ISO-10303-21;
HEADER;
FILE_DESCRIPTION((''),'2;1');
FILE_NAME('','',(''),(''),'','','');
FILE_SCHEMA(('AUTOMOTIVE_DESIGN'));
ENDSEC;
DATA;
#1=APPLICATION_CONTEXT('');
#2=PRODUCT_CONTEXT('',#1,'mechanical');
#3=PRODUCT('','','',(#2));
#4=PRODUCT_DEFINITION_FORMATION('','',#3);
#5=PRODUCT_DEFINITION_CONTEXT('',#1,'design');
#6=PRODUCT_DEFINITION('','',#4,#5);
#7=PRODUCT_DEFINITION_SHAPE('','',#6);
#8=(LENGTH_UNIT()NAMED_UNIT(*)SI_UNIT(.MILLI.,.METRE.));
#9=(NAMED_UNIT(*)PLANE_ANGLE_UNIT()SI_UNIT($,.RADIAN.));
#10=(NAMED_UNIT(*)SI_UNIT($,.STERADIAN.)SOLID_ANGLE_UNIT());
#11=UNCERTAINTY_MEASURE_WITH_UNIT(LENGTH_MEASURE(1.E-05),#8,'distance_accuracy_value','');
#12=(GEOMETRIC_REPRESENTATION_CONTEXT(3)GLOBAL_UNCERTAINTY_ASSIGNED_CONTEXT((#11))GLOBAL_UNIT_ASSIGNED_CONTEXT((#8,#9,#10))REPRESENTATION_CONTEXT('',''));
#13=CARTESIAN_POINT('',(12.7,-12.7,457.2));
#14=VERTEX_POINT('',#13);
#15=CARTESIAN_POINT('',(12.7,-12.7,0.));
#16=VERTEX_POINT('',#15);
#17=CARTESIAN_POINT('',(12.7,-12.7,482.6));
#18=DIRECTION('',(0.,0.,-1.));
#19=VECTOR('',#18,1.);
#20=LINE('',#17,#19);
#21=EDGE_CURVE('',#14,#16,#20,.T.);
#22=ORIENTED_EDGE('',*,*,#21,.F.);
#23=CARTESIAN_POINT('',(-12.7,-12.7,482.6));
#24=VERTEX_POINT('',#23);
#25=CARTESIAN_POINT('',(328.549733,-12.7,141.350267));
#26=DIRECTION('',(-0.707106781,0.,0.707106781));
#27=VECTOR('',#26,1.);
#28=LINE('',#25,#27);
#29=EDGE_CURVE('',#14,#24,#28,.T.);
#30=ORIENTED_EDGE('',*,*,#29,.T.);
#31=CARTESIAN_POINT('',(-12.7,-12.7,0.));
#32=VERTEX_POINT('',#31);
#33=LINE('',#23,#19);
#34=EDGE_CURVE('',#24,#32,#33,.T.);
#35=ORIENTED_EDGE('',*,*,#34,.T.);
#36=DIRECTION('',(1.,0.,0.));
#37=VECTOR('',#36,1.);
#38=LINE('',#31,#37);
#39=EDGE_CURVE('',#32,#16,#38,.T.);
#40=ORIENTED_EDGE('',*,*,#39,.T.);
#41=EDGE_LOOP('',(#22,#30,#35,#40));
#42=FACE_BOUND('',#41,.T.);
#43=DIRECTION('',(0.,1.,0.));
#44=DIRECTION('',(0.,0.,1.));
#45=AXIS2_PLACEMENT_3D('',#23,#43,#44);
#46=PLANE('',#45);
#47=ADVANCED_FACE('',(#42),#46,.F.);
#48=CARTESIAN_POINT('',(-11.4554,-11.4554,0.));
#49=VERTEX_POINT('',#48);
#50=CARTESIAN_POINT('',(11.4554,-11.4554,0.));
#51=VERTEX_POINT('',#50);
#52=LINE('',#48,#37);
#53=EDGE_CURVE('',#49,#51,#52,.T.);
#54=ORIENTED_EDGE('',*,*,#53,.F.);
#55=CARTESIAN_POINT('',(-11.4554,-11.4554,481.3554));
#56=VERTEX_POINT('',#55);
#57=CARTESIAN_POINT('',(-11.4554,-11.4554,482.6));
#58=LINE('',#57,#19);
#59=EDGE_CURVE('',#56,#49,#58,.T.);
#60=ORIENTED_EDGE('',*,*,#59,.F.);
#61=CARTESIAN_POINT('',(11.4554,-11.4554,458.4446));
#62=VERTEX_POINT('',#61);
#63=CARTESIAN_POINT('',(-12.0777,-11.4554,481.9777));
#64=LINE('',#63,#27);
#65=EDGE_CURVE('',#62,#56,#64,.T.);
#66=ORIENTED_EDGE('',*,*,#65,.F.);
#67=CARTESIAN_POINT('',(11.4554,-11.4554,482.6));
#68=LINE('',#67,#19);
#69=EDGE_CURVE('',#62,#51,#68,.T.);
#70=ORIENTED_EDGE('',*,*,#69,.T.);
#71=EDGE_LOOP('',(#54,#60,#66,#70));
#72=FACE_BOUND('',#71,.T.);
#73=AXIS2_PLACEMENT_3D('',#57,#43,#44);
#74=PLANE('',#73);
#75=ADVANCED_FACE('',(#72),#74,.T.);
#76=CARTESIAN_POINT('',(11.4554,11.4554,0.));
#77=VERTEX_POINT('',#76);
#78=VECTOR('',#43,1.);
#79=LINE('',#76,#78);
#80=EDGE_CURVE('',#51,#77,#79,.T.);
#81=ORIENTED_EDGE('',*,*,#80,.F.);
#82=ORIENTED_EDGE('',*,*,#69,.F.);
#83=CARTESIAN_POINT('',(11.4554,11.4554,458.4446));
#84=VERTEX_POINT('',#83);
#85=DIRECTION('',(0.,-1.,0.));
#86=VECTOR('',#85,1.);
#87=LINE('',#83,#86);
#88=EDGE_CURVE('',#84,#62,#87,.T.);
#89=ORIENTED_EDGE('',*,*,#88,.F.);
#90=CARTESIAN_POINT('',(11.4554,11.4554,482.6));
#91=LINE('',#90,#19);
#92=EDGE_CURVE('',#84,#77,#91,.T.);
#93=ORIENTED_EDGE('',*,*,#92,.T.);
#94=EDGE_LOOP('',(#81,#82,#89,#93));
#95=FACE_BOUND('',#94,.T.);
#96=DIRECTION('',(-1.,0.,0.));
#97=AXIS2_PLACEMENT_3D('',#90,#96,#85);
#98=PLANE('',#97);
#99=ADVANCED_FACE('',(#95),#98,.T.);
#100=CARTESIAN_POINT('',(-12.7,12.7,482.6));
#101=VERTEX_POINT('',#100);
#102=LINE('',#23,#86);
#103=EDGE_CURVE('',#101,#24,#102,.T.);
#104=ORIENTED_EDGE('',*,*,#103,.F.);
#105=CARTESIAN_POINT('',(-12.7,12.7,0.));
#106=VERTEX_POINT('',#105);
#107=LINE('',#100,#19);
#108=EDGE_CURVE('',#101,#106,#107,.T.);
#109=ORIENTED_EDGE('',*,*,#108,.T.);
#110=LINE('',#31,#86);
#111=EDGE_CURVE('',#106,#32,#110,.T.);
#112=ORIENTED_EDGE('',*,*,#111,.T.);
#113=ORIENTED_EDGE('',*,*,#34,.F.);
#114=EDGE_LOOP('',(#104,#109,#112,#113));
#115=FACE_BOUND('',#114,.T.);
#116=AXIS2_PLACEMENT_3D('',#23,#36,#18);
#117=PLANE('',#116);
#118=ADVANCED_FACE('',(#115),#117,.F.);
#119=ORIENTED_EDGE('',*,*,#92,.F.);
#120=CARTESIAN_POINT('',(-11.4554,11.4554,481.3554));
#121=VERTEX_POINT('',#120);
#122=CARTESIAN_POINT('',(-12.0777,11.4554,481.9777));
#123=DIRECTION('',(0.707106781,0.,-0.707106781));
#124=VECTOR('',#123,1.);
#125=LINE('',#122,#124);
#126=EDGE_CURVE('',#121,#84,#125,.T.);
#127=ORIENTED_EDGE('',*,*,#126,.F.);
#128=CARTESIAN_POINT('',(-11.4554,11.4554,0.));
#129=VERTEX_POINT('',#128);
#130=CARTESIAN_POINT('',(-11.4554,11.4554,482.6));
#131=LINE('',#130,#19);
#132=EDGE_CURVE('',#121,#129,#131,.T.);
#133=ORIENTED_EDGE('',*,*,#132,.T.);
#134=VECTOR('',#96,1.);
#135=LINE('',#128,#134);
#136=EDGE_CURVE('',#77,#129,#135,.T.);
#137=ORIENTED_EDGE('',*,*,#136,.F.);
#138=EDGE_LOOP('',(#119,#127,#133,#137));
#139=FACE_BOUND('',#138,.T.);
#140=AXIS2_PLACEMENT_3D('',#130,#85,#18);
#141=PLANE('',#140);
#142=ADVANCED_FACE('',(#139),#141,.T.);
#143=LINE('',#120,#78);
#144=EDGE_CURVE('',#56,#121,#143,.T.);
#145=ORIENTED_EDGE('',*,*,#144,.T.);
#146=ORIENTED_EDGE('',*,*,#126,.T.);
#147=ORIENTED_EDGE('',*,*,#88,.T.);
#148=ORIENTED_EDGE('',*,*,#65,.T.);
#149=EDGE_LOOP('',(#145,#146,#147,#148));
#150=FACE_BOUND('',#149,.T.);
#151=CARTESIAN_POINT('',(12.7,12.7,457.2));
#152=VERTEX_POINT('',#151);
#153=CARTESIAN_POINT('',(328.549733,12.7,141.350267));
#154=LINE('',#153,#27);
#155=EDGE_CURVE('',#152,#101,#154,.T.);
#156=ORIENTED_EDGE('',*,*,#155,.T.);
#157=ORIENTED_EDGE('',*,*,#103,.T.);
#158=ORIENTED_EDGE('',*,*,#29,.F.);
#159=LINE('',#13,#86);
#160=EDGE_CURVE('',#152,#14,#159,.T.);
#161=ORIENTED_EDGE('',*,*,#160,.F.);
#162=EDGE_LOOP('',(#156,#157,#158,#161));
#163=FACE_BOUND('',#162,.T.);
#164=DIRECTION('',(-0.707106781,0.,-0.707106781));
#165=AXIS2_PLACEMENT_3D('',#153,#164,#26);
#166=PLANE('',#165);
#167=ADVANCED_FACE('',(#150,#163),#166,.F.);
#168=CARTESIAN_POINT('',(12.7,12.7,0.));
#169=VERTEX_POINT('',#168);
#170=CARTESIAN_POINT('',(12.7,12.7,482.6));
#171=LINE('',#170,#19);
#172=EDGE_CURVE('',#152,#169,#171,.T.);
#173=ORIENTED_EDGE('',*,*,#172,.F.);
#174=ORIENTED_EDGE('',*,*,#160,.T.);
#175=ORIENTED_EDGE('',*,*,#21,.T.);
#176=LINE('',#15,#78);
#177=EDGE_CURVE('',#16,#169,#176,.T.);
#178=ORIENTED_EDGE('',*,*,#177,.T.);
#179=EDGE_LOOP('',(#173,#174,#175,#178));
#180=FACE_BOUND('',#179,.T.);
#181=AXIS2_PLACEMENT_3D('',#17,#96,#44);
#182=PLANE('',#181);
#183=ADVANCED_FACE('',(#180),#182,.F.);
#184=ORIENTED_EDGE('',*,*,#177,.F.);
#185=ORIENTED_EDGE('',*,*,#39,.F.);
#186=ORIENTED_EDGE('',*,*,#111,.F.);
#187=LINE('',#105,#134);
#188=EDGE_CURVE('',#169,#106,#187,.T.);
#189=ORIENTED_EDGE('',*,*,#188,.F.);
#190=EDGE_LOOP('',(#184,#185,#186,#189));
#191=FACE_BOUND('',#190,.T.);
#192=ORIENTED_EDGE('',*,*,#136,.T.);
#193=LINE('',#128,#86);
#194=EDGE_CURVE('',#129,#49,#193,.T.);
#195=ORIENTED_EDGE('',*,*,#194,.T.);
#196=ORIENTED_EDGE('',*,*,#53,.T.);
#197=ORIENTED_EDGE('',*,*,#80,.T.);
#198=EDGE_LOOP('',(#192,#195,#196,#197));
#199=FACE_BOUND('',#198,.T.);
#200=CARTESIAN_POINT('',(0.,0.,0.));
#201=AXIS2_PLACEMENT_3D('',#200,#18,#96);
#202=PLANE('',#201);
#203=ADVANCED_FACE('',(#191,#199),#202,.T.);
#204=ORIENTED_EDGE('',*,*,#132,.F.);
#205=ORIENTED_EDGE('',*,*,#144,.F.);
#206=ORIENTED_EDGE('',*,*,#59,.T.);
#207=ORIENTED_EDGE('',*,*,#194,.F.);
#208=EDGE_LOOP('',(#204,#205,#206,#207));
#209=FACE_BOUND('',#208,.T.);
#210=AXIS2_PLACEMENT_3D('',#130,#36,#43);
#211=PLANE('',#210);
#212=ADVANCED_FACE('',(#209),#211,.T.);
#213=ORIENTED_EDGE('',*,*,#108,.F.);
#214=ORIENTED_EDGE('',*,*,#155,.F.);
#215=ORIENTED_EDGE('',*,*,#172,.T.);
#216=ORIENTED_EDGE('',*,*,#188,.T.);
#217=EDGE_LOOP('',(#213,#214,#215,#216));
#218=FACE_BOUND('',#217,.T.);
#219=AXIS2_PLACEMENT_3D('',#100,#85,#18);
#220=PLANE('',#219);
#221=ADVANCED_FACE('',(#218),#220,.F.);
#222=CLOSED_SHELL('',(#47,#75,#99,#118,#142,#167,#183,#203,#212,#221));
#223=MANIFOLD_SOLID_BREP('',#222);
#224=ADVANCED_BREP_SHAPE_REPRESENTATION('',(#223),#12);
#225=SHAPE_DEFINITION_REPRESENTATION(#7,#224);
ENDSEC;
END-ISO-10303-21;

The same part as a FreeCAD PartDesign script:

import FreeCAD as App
import Part
import Sketcher
from FreeCAD import Vector
Q = App.Units.Quantity

doc = App.newDocument("Part")
body = doc.addObject("PartDesign::Body", "Body")

sketch1 = body.newObject("Sketcher::SketchObject", "Sketch")
sketch1.AttachmentSupport = (doc.getObject("XY_Plane"), [""])
sketch1.MapMode = "FlatFace"
sketch1.addGeometry([
    Part.LineSegment(Vector(-13, 13, 0), Vector(-13, -13, 0)),
    Part.LineSegment(Vector(-13, -13, 0), Vector(13, -13, 0)),
    Part.LineSegment(Vector(13, -13, 0), Vector(13, 13, 0)),
    Part.LineSegment(Vector(13, 13, 0), Vector(-13, 13, 0)),
    Part.LineSegment(Vector(11, -11, 0), Vector(-11, -11, 0)),
    Part.LineSegment(Vector(-11, -11, 0), Vector(-11, 11, 0)),
    Part.LineSegment(Vector(-11, 11, 0), Vector(11, 11, 0)),
    Part.LineSegment(Vector(11, 11, 0), Vector(11, -11, 0)),
], False)
sketch1.addConstraint([
    Sketcher.Constraint("Coincident", 0, 2, 1, 1),
    Sketcher.Constraint("Coincident", 1, 2, 2, 1),
    Sketcher.Constraint("Coincident", 2, 2, 3, 1),
    Sketcher.Constraint("Coincident", 3, 2, 0, 1),
    Sketcher.Constraint("Coincident", 4, 2, 5, 1),
    Sketcher.Constraint("Coincident", 5, 2, 6, 1),
    Sketcher.Constraint("Coincident", 6, 2, 7, 1),
    Sketcher.Constraint("Coincident", 7, 2, 4, 1),
    Sketcher.Constraint("Vertical", 0),
    Sketcher.Constraint("Horizontal", 1),
    Sketcher.Constraint("Vertical", 2),
    Sketcher.Constraint("Horizontal", 3),
    Sketcher.Constraint("Horizontal", 4),
    Sketcher.Constraint("Vertical", 5),
    Sketcher.Constraint("Horizontal", 6),
    Sketcher.Constraint("Vertical", 7),
    Sketcher.Constraint("Symmetric", 0, 2, 2, 2, -1, 1),
    Sketcher.Constraint("Symmetric", 4, 2, 6, 2, -1, 1),
    Sketcher.Constraint("Equal", 3, 0),
    Sketcher.Constraint("Equal", 6, 5),
    Sketcher.Constraint("DistanceX", 1, 1, 1, 2, Q("1 in")),
    Sketcher.Constraint("DistanceX", 4, 2, 4, 1, Q("0.902 in")),
])
pad1 = body.newObject("PartDesign::Pad", "Pad")
pad1.Profile = sketch1
pad1.Length = Q("19 in")

sketch2 = body.newObject("Sketcher::SketchObject", "Sketch001")
sketch2.Placement = App.Placement(Vector(-247.65, 0, 247.65), App.Rotation(Vector(0, -1, 0), Vector(0.707106781, 0, 0.707106781), Vector(-0.707106781, 0, 0.707106781), "ZXY"))
sketch2.addGeometry([
    Part.LineSegment(Vector(-13, 358, 0), Vector(-13, 332, 0)),
    Part.LineSegment(Vector(-13, 332, 0), Vector(13, 332, 0)),
    Part.LineSegment(Vector(13, 332, 0), Vector(13, 358, 0)),
    Part.LineSegment(Vector(13, 358, 0), Vector(-13, 358, 0)),
], False)
sketch2.addConstraint([
    Sketcher.Constraint("Coincident", 0, 2, 1, 1),
    Sketcher.Constraint("Coincident", 1, 2, 2, 1),
    Sketcher.Constraint("Coincident", 2, 2, 3, 1),
    Sketcher.Constraint("Coincident", 3, 2, 0, 1),
    Sketcher.Constraint("Vertical", 0),
    Sketcher.Constraint("Horizontal", 1),
    Sketcher.Constraint("Vertical", 2),
    Sketcher.Constraint("Horizontal", 3),
    Sketcher.Constraint("Equal", 3, 0),
    Sketcher.Constraint("DistanceX", 1, 1, 1, 2, Q("1 in")),
    Sketcher.Constraint("DistanceX", 0, 2, -1, 1, Q("0.5 in")),
    Sketcher.Constraint("DistanceY", -1, 1, 0, 2, Q("332.269476 mm")),
])
pocket1 = body.newObject("PartDesign::Pocket", "Pocket")
pocket1.Profile = sketch2
pocket1.Length = Q("19 in")

doc.recompute()
